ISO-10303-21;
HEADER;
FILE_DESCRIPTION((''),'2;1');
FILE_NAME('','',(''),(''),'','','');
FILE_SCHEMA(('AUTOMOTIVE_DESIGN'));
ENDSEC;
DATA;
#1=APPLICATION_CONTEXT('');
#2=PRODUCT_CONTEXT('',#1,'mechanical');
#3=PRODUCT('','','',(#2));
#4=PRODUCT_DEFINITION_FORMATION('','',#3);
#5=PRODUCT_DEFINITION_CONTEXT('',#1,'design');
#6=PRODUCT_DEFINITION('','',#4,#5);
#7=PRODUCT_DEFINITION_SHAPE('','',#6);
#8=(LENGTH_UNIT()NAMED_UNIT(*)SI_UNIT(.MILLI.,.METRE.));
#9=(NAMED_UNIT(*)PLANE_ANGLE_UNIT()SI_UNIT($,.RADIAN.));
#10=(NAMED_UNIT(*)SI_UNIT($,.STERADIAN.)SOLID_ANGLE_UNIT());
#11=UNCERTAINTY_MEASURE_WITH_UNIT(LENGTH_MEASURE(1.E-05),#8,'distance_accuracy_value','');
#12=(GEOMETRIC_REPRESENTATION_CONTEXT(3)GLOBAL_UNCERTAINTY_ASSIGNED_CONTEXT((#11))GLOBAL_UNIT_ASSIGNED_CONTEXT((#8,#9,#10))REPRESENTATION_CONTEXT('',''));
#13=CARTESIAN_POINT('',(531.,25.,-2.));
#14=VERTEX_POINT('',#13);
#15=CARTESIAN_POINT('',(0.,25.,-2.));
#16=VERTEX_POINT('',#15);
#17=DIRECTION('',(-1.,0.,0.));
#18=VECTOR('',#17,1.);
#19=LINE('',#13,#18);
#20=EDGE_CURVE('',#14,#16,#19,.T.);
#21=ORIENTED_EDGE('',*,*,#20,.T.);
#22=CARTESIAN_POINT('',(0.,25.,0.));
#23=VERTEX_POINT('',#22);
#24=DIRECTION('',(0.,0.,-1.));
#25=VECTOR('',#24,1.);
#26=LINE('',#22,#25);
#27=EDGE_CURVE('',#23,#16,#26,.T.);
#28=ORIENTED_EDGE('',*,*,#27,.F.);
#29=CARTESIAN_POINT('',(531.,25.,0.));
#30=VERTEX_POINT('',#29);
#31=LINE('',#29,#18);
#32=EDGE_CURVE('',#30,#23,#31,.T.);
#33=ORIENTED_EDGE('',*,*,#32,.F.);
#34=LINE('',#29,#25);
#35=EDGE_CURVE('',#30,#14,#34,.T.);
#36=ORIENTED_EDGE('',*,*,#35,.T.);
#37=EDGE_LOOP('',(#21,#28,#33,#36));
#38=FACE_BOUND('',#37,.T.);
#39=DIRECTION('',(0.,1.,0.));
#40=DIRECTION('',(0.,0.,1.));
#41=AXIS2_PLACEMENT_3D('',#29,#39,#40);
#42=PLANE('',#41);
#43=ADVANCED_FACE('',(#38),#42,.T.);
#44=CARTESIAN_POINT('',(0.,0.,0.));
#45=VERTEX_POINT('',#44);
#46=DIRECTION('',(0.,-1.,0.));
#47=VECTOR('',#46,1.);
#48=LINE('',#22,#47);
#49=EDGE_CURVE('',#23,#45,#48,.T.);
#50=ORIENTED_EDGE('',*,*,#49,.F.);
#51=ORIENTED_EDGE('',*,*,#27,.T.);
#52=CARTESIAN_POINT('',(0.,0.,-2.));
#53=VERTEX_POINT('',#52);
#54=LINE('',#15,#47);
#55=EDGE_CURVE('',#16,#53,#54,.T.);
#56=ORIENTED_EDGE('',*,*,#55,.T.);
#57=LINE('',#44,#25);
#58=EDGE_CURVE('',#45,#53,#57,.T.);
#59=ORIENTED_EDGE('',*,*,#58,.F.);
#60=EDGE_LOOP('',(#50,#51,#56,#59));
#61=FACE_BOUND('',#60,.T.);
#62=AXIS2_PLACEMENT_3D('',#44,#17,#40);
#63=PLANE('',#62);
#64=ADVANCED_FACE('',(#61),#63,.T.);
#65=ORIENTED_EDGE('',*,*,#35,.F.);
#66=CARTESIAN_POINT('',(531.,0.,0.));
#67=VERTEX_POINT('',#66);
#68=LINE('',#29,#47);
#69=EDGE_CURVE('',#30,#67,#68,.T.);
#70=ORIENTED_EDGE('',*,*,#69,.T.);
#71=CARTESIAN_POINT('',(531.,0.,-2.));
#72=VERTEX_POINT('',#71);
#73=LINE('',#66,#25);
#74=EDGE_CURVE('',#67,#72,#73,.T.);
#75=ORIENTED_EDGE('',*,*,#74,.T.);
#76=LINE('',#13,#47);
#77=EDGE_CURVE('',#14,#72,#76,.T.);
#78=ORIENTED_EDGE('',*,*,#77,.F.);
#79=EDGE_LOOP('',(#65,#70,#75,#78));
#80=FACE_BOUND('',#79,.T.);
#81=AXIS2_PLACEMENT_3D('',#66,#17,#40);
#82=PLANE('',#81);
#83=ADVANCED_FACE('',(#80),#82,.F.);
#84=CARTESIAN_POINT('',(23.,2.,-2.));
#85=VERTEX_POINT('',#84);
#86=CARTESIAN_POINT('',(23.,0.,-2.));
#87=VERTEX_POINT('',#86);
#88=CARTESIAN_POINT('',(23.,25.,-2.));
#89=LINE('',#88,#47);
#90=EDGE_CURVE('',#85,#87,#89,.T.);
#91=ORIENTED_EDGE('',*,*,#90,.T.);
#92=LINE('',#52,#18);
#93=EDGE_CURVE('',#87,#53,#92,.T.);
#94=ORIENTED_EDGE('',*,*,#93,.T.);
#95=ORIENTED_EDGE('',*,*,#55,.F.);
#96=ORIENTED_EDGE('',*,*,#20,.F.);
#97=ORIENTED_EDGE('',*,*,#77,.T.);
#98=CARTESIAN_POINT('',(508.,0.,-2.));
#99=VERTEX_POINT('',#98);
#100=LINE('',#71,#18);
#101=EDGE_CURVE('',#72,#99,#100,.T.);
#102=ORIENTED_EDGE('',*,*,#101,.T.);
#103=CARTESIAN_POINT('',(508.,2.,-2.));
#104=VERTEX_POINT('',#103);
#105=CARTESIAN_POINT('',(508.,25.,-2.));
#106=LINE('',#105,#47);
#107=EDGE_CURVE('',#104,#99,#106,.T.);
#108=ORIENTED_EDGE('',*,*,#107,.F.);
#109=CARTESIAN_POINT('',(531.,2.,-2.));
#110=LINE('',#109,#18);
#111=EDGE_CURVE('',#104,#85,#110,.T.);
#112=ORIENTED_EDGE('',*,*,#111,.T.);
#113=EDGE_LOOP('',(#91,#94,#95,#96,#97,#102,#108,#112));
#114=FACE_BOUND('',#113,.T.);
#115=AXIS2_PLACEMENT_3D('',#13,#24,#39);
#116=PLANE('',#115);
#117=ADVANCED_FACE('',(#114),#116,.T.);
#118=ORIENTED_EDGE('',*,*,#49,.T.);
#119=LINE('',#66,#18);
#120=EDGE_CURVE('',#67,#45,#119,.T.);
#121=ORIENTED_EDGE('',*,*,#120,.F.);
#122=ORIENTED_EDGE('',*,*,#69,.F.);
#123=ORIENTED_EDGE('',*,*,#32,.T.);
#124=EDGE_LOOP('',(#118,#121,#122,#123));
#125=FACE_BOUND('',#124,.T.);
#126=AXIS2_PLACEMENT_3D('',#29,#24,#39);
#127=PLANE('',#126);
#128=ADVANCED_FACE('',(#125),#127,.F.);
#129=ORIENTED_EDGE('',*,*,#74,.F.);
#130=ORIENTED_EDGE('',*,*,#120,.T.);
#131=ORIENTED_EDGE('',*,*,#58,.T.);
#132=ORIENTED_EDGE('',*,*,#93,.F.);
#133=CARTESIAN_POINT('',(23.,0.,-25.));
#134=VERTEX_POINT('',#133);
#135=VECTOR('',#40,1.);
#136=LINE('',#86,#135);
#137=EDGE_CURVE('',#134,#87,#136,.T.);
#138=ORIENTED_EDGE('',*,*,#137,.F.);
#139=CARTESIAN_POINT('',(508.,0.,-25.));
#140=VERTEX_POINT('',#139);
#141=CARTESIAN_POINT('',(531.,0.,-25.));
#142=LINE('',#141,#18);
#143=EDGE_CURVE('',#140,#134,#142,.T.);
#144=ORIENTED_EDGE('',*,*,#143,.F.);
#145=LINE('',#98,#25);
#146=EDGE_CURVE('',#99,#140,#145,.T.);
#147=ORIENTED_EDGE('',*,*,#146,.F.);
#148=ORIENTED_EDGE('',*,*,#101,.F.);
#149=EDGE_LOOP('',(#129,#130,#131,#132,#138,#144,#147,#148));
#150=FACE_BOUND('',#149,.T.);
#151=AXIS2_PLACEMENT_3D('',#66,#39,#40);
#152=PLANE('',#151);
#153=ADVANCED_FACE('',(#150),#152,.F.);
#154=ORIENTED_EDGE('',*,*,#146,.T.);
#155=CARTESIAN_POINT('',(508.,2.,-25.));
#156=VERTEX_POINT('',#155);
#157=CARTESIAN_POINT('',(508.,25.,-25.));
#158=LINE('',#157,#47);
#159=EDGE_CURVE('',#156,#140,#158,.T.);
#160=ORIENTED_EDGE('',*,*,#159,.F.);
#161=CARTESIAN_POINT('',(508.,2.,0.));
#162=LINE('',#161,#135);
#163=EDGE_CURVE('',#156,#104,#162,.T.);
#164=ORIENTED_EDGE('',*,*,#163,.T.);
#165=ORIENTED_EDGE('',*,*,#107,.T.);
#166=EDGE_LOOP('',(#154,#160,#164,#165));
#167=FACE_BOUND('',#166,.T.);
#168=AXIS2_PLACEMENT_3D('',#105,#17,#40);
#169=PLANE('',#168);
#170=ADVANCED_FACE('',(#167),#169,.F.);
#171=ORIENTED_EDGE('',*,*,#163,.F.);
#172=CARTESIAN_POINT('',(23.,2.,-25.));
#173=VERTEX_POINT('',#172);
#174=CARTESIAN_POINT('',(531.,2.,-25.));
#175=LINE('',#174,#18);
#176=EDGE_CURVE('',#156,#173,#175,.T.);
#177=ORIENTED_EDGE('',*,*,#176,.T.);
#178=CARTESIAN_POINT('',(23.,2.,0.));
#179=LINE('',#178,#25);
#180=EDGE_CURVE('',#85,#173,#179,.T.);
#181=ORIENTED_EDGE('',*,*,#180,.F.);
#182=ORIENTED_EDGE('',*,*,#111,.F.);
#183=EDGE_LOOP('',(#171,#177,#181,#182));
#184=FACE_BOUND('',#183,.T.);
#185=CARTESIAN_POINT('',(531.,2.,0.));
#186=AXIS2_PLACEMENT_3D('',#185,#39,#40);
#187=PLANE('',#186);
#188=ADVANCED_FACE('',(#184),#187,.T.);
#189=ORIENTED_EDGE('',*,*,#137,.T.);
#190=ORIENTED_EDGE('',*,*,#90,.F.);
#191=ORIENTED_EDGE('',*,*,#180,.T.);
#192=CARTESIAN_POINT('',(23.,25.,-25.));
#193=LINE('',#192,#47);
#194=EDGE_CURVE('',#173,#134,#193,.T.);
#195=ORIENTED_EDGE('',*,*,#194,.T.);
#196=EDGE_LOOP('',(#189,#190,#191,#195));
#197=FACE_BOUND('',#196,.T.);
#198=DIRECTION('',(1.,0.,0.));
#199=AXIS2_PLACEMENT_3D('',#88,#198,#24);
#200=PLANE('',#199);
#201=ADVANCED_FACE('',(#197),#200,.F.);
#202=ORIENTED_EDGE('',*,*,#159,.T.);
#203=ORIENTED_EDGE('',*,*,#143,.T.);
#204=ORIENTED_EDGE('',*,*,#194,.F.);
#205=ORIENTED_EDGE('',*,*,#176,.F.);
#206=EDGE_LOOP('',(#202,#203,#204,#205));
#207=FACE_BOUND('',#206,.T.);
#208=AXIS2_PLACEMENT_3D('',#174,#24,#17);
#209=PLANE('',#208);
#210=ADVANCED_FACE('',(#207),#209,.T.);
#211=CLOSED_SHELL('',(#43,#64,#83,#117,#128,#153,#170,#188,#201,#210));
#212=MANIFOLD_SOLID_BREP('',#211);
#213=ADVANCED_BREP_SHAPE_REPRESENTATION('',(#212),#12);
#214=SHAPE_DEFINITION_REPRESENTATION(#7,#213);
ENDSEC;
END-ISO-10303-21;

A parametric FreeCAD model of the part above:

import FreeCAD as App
import Part
import Sketcher
from FreeCAD import Vector
Q = App.Units.Quantity

doc = App.newDocument("Part")
body = doc.addObject("PartDesign::Body", "Body")

# Sketch on YZ plane
sketch1 = body.newObject("Sketcher::SketchObject", "Sketch")
sketch1.AttachmentSupport = (doc.getObject("YZ_Plane"), [""])
sketch1.MapMode = "FlatFace"
sketch1.addGeometry(Part.LineSegment(Vector(25, 0, 0), Vector(0, 0, 0)), False)
sketch1.addGeometry(Part.LineSegment(Vector(0, 0, 0), Vector(0, -25, 0)), False)
sketch1.addGeometry(Part.LineSegment(Vector(0, -25, 0), Vector(2, -25, 0)), False)
sketch1.addGeometry(Part.LineSegment(Vector(2, -25, 0), Vector(2, -2, 0)), False)
sketch1.addGeometry(Part.LineSegment(Vector(2, -2, 0), Vector(25, -2, 0)), False)
sketch1.addGeometry(Part.LineSegment(Vector(25, -2, 0), Vector(25, 0, 0)), False)
sketch1.addConstraint(Sketcher.Constraint("Coincident", 0, 2, 1, 1))
sketch1.addConstraint(Sketcher.Constraint("Coincident", 1, 2, 2, 1))
sketch1.addConstraint(Sketcher.Constraint("Coincident", 2, 2, 3, 1))
sketch1.addConstraint(Sketcher.Constraint("Coincident", 3, 2, 4, 1))
sketch1.addConstraint(Sketcher.Constraint("Coincident", 4, 2, 5, 1))
sketch1.addConstraint(Sketcher.Constraint("Coincident", 5, 2, 0, 1))
sketch1.addConstraint(Sketcher.Constraint("Horizontal", 0))
sketch1.addConstraint(Sketcher.Constraint("Vertical", 1))
sketch1.addConstraint(Sketcher.Constraint("Horizontal", 2))
sketch1.addConstraint(Sketcher.Constraint("Vertical", 3))
sketch1.addConstraint(Sketcher.Constraint("Horizontal", 4))
sketch1.addConstraint(Sketcher.Constraint("Vertical", 5))
sketch1.addConstraint(Sketcher.Constraint("Coincident", 0, 2, -1, 1))
sketch1.addConstraint(Sketcher.Constraint("Equal", 0, 1))
sketch1.addConstraint(Sketcher.Constraint("Equal", 4, 3))
sketch1.addConstraint(Sketcher.Constraint("DistanceX", 0, 2, 0, 1, Q("25 mm")))
sketch1.addConstraint(Sketcher.Constraint("DistanceX", 2, 1, 2, 2, Q("2 mm")))
pad1 = body.newObject("PartDesign::Pad", "Pad")
pad1.Profile = sketch1
pad1.Length = 531

# Sketch on XZ plane
sketch2 = body.newObject("Sketcher::SketchObject", "Sketch001")
sketch2.AttachmentSupport = (doc.getObject("XZ_Plane"), [""])
sketch2.MapMode = "FlatFace"
sketch2.addGeometry(Part.LineSegment(Vector(0, -2, 0), Vector(0, -25, 0)), False)
sketch2.addGeometry(Part.LineSegment(Vector(0, -25, 0), Vector(23, -25, 0)), False)
sketch2.addGeometry(Part.LineSegment(Vector(23, -25, 0), Vector(23, -2, 0)), False)
sketch2.addGeometry(Part.LineSegment(Vector(23, -2, 0), Vector(0, -2, 0)), False)
sketch2.addGeometry(Part.LineSegment(Vector(508, -2, 0), Vector(508, -25, 0)), False)
sketch2.addGeometry(Part.LineSegment(Vector(508, -25, 0), Vector(531, -25, 0)), False)
sketch2.addGeometry(Part.LineSegment(Vector(531, -25, 0), Vector(531, -2, 0)), False)
sketch2.addGeometry(Part.LineSegment(Vector(531, -2, 0), Vector(508, -2, 0)), False)
sketch2.addConstraint(Sketcher.Constraint("Coincident", 0, 2, 1, 1))
sketch2.addConstraint(Sketcher.Constraint("Coincident", 1, 2, 2, 1))
sketch2.addConstraint(Sketcher.Constraint("Coincident", 2, 2, 3, 1))
sketch2.addConstraint(Sketcher.Constraint("Coincident", 3, 2, 0, 1))
sketch2.addConstraint(Sketcher.Constraint("Coincident", 4, 2, 5, 1))
sketch2.addConstraint(Sketcher.Constraint("Coincident", 5, 2, 6, 1))
sketch2.addConstraint(Sketcher.Constraint("Coincident", 6, 2, 7, 1))
sketch2.addConstraint(Sketcher.Constraint("Coincident", 7, 2, 4, 1))
sketch2.addConstraint(Sketcher.Constraint("Vertical", 0))
sketch2.addConstraint(Sketcher.Constraint("Horizontal", 1))
sketch2.addConstraint(Sketcher.Constraint("Vertical", 2))
sketch2.addConstraint(Sketcher.Constraint("Horizontal", 3))
sketch2.addConstraint(Sketcher.Constraint("Vertical", 4))
sketch2.addConstraint(Sketcher.Constraint("Horizontal", 5))
sketch2.addConstraint(Sketcher.Constraint("Vertical", 6))
sketch2.addConstraint(Sketcher.Constraint("Horizontal", 7))
sketch2.addConstraint(Sketcher.Constraint("PointOnObject", 0, 2, -2))
sketch2.addConstraint(Sketcher.Constraint("Horizontal", 1, 2, 4, 2))
sketch2.addConstraint(Sketcher.Constraint("Horizontal", 3, 2, 6, 2))
sketch2.addConstraint(Sketcher.Constraint("Equal", 3, 5))
sketch2.addConstraint(Sketcher.Constraint("Equal", 7, 0))
sketch2.addConstraint(Sketcher.Constraint("DistanceX", 1, 1, 1, 2, Q("23 mm")))
sketch2.addConstraint(Sketcher.Constraint("DistanceY", 0, 2, -1, 1, Q("25 mm")))
sketch2.addConstraint(Sketcher.Constraint("DistanceX", -1, 1, 4, 2, Q("508 mm")))
pocket1 = body.newObject("PartDesign::Pocket", "Pocket")
pocket1.Profile = sketch2
pocket1.Type = "ThroughAll"

doc.recompute()
